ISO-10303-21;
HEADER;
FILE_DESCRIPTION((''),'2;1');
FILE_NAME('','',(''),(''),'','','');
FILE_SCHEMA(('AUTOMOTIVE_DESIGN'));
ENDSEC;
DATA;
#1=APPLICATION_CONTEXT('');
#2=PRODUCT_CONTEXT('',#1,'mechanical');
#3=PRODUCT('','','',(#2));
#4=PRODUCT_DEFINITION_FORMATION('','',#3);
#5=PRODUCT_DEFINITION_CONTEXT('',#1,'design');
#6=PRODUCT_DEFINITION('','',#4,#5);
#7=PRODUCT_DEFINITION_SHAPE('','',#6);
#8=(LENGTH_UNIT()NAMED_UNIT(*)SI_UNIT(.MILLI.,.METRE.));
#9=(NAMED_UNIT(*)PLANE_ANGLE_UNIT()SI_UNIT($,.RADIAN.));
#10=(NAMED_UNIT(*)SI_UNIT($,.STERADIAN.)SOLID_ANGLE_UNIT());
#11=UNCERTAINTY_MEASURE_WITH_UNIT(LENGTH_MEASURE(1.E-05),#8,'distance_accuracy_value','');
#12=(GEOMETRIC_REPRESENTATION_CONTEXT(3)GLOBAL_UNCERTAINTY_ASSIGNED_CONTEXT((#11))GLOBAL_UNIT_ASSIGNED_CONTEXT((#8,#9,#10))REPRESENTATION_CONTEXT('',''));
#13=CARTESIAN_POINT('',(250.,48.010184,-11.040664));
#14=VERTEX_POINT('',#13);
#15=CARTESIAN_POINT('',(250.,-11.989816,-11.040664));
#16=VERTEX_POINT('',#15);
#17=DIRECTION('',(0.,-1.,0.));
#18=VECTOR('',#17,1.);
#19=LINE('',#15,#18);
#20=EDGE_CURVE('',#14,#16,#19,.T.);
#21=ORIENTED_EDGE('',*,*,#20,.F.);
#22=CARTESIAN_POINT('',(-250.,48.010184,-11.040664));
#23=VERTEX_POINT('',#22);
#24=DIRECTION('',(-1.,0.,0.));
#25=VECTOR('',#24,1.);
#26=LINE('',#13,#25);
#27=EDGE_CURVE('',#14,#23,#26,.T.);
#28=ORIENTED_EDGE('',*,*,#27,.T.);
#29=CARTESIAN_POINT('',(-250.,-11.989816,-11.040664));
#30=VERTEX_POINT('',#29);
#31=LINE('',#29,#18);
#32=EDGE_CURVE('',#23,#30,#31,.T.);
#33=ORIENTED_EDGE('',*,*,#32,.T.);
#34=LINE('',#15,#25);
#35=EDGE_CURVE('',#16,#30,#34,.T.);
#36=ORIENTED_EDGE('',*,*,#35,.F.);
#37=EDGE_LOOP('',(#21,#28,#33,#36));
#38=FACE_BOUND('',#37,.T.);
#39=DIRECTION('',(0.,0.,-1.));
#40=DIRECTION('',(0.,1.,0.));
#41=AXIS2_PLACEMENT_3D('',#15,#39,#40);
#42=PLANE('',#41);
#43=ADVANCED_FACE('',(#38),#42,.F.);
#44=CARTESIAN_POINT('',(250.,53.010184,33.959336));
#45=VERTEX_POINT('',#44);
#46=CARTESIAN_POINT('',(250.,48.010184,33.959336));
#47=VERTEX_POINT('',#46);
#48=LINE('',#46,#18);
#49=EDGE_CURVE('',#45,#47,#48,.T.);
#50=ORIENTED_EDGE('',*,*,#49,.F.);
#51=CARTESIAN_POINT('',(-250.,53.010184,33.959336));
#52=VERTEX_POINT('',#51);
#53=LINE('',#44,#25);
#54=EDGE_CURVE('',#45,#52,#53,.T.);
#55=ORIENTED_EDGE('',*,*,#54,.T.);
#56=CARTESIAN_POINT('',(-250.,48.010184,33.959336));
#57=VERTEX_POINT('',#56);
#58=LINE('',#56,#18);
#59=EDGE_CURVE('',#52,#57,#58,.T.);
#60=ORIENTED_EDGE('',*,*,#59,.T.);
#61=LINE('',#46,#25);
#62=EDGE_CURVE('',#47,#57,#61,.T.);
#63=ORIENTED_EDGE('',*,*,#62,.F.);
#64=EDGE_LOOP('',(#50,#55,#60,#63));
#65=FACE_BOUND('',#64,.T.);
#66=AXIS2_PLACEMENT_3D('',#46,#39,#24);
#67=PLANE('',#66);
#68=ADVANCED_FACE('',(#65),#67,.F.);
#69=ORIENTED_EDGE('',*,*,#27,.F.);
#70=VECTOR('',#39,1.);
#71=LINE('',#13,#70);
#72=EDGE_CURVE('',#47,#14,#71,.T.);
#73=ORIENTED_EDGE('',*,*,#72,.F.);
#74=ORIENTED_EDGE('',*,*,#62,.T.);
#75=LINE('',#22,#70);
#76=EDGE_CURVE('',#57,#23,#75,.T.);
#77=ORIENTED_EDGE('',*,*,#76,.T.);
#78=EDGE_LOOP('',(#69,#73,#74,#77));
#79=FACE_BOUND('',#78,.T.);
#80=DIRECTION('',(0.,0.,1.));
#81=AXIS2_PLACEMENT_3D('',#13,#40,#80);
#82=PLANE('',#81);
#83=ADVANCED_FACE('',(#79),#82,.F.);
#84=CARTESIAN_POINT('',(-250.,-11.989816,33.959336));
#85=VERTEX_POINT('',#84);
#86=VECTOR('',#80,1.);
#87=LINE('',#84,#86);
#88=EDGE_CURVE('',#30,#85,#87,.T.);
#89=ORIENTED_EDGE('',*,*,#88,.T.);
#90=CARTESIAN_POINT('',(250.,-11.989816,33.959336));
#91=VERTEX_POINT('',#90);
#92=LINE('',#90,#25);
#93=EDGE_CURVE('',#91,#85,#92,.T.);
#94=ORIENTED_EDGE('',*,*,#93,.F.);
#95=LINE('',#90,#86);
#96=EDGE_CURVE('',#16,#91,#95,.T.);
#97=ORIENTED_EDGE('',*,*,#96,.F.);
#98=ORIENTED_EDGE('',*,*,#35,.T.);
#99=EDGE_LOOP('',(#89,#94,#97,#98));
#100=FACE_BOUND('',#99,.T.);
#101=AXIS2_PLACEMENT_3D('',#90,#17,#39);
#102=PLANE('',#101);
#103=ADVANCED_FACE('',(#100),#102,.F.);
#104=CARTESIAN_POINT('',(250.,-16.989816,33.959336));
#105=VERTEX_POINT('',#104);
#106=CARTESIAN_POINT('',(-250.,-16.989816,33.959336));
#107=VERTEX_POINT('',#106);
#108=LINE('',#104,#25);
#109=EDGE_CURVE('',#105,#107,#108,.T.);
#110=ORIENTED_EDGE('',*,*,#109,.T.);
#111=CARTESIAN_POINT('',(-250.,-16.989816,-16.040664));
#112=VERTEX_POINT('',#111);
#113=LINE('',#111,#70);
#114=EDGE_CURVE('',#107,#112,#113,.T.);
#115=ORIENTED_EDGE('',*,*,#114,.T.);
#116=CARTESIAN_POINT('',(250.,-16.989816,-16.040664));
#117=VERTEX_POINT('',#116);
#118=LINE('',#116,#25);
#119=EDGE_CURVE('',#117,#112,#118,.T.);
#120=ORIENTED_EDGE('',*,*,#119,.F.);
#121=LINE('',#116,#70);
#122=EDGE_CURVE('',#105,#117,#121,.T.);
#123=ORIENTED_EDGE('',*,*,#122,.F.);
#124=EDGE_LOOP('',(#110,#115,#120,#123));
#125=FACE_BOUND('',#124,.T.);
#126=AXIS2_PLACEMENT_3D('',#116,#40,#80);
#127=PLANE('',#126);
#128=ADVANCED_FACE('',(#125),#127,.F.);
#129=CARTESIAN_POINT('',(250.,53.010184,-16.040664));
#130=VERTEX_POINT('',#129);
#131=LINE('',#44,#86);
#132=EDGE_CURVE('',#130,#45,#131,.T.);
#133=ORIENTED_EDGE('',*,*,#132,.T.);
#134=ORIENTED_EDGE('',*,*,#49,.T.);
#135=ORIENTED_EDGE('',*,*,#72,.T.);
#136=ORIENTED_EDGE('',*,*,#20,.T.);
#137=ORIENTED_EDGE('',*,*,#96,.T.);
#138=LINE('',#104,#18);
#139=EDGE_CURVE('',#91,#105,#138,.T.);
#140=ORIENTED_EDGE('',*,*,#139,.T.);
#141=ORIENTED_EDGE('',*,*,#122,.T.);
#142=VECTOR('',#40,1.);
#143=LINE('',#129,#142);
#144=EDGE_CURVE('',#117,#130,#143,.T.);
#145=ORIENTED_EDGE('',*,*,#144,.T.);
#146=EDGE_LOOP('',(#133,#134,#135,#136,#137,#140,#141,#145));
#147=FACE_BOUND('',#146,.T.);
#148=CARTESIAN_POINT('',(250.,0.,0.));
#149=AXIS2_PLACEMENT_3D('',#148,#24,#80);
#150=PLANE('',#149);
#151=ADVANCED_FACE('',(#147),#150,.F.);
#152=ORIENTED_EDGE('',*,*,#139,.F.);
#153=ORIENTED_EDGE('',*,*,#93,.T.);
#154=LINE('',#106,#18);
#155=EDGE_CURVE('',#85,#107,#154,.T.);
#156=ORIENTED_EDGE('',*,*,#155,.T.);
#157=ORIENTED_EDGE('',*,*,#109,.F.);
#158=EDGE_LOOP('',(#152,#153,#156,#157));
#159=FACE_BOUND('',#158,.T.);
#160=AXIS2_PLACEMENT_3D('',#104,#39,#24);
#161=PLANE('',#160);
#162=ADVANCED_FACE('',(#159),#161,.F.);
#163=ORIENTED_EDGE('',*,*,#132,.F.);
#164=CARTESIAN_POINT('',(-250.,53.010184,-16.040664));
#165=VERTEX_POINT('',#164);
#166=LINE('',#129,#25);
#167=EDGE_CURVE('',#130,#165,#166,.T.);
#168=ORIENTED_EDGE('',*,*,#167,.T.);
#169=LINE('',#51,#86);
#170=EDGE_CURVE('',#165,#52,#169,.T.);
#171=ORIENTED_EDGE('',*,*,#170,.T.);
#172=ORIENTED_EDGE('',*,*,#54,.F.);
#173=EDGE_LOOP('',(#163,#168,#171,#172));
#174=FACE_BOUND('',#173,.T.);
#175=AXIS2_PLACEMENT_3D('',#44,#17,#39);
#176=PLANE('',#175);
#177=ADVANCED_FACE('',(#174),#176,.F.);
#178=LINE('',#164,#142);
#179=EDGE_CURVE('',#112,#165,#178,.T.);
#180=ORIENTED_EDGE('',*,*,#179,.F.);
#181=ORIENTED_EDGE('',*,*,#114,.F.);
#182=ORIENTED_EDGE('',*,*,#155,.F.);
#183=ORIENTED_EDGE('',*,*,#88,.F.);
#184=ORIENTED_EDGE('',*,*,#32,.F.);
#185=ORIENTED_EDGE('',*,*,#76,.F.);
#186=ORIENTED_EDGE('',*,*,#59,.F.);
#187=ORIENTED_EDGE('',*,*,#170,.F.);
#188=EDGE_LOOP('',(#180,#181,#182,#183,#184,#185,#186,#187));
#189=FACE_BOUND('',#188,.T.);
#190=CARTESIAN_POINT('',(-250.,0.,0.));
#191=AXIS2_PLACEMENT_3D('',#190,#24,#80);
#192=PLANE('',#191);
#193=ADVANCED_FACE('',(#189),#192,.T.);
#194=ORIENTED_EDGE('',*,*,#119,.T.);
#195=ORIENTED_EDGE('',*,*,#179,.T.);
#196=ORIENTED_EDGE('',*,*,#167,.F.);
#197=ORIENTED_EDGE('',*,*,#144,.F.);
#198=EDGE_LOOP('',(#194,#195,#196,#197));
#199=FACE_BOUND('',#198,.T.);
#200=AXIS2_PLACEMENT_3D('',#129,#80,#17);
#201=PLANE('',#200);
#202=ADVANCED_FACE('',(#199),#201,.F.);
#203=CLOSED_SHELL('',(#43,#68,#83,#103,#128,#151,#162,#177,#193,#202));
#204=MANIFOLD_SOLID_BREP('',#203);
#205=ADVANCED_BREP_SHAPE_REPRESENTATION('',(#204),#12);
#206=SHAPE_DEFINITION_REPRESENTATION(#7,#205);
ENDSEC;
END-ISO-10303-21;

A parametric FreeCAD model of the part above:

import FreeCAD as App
import Part
import Sketcher
from FreeCAD import Vector
Q = App.Units.Quantity


def add_polygon(sketch, points):
    """Adds a closed chain of lines whose ends are joined by coincident constraints."""
    first, n = sketch.GeometryCount, len(points)
    for a, b in zip(points, points[1:] + points[:1]):
        sketch.addGeometry(Part.LineSegment(App.Vector(*a, 0), App.Vector(*b, 0)), False)
    for i in range(n):
        sketch.addConstraint(Sketcher.Constraint("Coincident", first + i, 2, first + (i + 1) % n, 1))

doc = App.newDocument("Part")
body = doc.addObject("PartDesign::Body", "Body")

sketch1 = body.newObject("Sketcher::SketchObject", "Sketch")
sketch1.AttachmentSupport = (doc.getObject("YZ_Plane"), [""])
sketch1.MapMode = "FlatFace"
add_polygon(sketch1, [(53, -16), (53, 34), (48, 34), (48, -11), (-12, -11), (-12, 34), (-17, 34), (-17, -16)])
sketch1.addConstraint(Sketcher.Constraint("Vertical", 0))
sketch1.addConstraint(Sketcher.Constraint("Horizontal", 1))
sketch1.addConstraint(Sketcher.Constraint("Vertical", 2))
sketch1.addConstraint(Sketcher.Constraint("Horizontal", 3))
sketch1.addConstraint(Sketcher.Constraint("Vertical", 4))
sketch1.addConstraint(Sketcher.Constraint("Horizontal", 5))
sketch1.addConstraint(Sketcher.Constraint("Vertical", 6))
sketch1.addConstraint(Sketcher.Constraint("Horizontal", 7))
sketch1.addConstraint(Sketcher.Constraint("Horizontal", 1, 2, 4, 2))
sketch1.addConstraint(Sketcher.Constraint("Equal", 1, 5))
sketch1.addConstraint(Sketcher.Constraint("DistanceX", 1, 2, 1, 1, Q("5 mm")))
sketch1.addConstraint(Sketcher.Constraint("DistanceX", 3, 2, 3, 1, Q("60 mm")))
sketch1.addConstraint(Sketcher.Constraint("DistanceY", 0, 1, 0, 2, Q("50 mm")))
sketch1.addConstraint(Sketcher.Constraint("DistanceY", 2, 2, 2, 1, Q("45 mm")))
sketch1.addConstraint(Sketcher.Constraint("DistanceX", -1, 1, 0, 2, Q("53.010184 mm")))
sketch1.addConstraint(Sketcher.Constraint("DistanceY", -1, 1, 0, 2, Q("33.959336 mm")))
pad1 = body.newObject("PartDesign::Pad", "Pad")
pad1.Profile = sketch1
pad1.Length = 500
pad1.Midplane = True

doc.recompute()
